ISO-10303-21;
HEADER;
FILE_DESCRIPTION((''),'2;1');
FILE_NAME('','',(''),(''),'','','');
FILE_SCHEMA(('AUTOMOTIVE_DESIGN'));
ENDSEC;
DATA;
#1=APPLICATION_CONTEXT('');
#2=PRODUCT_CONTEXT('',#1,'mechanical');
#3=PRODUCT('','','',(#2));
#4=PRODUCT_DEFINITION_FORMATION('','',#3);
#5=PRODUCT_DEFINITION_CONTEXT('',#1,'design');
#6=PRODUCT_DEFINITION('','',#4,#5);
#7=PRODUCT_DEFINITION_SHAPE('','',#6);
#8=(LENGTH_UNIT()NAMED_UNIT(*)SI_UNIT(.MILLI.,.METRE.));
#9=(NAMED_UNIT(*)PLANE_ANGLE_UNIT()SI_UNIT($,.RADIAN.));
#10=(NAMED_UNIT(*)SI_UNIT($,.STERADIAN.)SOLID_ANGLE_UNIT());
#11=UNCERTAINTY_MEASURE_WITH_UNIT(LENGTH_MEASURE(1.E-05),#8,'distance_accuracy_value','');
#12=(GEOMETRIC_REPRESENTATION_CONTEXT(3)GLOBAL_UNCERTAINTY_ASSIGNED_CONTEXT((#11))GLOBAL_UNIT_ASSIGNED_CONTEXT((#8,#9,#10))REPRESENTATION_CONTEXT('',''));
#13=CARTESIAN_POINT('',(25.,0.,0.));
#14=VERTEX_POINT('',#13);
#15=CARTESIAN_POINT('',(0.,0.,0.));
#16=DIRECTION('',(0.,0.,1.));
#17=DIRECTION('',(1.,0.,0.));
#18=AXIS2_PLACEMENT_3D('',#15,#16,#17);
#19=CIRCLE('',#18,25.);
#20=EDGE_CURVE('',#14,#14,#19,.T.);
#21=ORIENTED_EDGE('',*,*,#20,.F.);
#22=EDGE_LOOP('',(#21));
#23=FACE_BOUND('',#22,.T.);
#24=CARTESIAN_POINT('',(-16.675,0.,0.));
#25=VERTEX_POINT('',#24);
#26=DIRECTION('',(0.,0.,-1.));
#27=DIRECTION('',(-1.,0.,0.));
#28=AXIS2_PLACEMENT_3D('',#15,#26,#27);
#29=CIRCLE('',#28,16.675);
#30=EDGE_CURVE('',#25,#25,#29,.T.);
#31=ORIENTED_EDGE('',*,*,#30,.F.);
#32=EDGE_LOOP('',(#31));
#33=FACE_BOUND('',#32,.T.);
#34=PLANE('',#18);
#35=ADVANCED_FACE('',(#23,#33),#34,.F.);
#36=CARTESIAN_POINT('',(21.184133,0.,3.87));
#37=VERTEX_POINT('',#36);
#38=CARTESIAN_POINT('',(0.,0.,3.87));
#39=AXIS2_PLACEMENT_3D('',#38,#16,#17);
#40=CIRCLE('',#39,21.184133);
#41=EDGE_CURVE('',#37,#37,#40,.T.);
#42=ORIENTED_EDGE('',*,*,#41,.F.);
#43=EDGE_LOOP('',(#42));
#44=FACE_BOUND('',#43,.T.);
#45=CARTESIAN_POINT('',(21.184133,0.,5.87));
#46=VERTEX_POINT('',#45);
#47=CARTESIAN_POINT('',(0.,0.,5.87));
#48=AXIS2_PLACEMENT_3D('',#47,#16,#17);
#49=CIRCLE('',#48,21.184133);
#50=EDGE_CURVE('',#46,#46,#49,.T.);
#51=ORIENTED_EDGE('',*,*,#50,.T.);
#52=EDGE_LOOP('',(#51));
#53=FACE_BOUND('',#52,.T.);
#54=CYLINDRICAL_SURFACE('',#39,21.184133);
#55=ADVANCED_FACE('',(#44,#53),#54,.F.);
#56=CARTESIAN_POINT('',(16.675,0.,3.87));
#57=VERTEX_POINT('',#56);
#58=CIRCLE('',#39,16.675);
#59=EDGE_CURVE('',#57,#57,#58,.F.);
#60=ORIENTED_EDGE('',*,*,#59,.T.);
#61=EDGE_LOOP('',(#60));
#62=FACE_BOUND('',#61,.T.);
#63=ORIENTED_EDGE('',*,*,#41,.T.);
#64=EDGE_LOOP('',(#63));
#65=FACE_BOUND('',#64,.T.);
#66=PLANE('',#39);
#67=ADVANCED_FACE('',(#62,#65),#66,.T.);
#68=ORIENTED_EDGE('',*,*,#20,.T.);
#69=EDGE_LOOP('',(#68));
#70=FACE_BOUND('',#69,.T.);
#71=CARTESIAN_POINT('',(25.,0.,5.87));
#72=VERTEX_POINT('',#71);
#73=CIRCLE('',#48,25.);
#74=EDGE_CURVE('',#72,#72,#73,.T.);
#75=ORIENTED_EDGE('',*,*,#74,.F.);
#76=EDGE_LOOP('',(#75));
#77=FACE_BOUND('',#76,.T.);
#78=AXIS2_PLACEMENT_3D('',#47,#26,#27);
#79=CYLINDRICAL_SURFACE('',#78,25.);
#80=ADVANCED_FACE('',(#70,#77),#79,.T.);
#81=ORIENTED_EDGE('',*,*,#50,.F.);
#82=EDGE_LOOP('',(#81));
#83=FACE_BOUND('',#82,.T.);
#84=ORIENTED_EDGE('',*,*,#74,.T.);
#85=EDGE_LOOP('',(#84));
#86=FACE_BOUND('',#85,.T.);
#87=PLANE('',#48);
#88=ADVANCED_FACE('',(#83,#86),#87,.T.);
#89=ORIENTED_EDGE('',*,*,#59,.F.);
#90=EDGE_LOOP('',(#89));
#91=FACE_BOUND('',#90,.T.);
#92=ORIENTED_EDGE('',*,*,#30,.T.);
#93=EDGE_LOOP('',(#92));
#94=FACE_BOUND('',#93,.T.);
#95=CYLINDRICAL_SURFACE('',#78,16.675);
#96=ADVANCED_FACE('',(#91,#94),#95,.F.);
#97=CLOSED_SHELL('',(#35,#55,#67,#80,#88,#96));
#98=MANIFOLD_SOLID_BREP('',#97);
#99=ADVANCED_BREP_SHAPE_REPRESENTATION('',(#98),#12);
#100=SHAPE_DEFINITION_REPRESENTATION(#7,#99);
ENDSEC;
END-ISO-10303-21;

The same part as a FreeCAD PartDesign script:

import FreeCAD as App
import Part
import Sketcher
from FreeCAD import Vector

doc = App.newDocument("Part")
body = doc.addObject("PartDesign::Body", "Body")

# Sketch on XY plane
sketch1 = body.newObject("Sketcher::SketchObject", "Sketch")
sketch1.AttachmentSupport = (doc.getObject("XY_Plane"), [""])
sketch1.MapMode = "FlatFace"
sketch1.addGeometry(Part.Circle(Vector(0, 0, 0), Vector(0, 0, 1), 25), False)
sketch1.addConstraint(Sketcher.Constraint("Coincident", 0, 3, -1, 1))
sketch1.addConstraint(Sketcher.Constraint("Diameter", 0, 50.0))
pad1 = body.newObject("PartDesign::Pad", "Pad")
pad1.Profile = sketch1
pad1.Length = 5.87

# Sketch on XY plane
sketch2 = body.newObject("Sketcher::SketchObject", "Sketch001")
sketch2.AttachmentSupport = (doc.getObject("XY_Plane"), [""])
sketch2.MapMode = "FlatFace"
sketch2.addGeometry(Part.Circle(Vector(0, 0, 0), Vector(0, 0, 1), 16.675), False)
sketch2.addConstraint(Sketcher.Constraint("Coincident", 0, 3, -1, 1))
sketch2.addConstraint(Sketcher.Constraint("Diameter", 0, 33.35))
pocket1 = body.newObject("PartDesign::Pocket", "Pocket")
pocket1.Profile = sketch2
pocket1.Type = "ThroughAll"
pocket1.Reversed = True

# Sketch on XY plane
sketch3 = body.newObject("Sketcher::SketchObject", "Sketch002")
sketch3.AttachmentSupport = (doc.getObject("XY_Plane"), [""])
sketch3.MapMode = "FlatFace"
sketch3.AttachmentOffset = App.Placement(Vector(0, 0, 5.87), App.Rotation())
sketch3.addGeometry(Part.Circle(Vector(0, 0, 0), Vector(0, 0, 1), 21.184133), False)
sketch3.addConstraint(Sketcher.Constraint("Coincident", 0, 3, -1, 1))
sketch3.addConstraint(Sketcher.Constraint("Diameter", 0, 42.368265))
pocket2 = body.newObject("PartDesign::Pocket", "Pocket001")
pocket2.Profile = sketch3
pocket2.Length = 2

doc.recompute()
